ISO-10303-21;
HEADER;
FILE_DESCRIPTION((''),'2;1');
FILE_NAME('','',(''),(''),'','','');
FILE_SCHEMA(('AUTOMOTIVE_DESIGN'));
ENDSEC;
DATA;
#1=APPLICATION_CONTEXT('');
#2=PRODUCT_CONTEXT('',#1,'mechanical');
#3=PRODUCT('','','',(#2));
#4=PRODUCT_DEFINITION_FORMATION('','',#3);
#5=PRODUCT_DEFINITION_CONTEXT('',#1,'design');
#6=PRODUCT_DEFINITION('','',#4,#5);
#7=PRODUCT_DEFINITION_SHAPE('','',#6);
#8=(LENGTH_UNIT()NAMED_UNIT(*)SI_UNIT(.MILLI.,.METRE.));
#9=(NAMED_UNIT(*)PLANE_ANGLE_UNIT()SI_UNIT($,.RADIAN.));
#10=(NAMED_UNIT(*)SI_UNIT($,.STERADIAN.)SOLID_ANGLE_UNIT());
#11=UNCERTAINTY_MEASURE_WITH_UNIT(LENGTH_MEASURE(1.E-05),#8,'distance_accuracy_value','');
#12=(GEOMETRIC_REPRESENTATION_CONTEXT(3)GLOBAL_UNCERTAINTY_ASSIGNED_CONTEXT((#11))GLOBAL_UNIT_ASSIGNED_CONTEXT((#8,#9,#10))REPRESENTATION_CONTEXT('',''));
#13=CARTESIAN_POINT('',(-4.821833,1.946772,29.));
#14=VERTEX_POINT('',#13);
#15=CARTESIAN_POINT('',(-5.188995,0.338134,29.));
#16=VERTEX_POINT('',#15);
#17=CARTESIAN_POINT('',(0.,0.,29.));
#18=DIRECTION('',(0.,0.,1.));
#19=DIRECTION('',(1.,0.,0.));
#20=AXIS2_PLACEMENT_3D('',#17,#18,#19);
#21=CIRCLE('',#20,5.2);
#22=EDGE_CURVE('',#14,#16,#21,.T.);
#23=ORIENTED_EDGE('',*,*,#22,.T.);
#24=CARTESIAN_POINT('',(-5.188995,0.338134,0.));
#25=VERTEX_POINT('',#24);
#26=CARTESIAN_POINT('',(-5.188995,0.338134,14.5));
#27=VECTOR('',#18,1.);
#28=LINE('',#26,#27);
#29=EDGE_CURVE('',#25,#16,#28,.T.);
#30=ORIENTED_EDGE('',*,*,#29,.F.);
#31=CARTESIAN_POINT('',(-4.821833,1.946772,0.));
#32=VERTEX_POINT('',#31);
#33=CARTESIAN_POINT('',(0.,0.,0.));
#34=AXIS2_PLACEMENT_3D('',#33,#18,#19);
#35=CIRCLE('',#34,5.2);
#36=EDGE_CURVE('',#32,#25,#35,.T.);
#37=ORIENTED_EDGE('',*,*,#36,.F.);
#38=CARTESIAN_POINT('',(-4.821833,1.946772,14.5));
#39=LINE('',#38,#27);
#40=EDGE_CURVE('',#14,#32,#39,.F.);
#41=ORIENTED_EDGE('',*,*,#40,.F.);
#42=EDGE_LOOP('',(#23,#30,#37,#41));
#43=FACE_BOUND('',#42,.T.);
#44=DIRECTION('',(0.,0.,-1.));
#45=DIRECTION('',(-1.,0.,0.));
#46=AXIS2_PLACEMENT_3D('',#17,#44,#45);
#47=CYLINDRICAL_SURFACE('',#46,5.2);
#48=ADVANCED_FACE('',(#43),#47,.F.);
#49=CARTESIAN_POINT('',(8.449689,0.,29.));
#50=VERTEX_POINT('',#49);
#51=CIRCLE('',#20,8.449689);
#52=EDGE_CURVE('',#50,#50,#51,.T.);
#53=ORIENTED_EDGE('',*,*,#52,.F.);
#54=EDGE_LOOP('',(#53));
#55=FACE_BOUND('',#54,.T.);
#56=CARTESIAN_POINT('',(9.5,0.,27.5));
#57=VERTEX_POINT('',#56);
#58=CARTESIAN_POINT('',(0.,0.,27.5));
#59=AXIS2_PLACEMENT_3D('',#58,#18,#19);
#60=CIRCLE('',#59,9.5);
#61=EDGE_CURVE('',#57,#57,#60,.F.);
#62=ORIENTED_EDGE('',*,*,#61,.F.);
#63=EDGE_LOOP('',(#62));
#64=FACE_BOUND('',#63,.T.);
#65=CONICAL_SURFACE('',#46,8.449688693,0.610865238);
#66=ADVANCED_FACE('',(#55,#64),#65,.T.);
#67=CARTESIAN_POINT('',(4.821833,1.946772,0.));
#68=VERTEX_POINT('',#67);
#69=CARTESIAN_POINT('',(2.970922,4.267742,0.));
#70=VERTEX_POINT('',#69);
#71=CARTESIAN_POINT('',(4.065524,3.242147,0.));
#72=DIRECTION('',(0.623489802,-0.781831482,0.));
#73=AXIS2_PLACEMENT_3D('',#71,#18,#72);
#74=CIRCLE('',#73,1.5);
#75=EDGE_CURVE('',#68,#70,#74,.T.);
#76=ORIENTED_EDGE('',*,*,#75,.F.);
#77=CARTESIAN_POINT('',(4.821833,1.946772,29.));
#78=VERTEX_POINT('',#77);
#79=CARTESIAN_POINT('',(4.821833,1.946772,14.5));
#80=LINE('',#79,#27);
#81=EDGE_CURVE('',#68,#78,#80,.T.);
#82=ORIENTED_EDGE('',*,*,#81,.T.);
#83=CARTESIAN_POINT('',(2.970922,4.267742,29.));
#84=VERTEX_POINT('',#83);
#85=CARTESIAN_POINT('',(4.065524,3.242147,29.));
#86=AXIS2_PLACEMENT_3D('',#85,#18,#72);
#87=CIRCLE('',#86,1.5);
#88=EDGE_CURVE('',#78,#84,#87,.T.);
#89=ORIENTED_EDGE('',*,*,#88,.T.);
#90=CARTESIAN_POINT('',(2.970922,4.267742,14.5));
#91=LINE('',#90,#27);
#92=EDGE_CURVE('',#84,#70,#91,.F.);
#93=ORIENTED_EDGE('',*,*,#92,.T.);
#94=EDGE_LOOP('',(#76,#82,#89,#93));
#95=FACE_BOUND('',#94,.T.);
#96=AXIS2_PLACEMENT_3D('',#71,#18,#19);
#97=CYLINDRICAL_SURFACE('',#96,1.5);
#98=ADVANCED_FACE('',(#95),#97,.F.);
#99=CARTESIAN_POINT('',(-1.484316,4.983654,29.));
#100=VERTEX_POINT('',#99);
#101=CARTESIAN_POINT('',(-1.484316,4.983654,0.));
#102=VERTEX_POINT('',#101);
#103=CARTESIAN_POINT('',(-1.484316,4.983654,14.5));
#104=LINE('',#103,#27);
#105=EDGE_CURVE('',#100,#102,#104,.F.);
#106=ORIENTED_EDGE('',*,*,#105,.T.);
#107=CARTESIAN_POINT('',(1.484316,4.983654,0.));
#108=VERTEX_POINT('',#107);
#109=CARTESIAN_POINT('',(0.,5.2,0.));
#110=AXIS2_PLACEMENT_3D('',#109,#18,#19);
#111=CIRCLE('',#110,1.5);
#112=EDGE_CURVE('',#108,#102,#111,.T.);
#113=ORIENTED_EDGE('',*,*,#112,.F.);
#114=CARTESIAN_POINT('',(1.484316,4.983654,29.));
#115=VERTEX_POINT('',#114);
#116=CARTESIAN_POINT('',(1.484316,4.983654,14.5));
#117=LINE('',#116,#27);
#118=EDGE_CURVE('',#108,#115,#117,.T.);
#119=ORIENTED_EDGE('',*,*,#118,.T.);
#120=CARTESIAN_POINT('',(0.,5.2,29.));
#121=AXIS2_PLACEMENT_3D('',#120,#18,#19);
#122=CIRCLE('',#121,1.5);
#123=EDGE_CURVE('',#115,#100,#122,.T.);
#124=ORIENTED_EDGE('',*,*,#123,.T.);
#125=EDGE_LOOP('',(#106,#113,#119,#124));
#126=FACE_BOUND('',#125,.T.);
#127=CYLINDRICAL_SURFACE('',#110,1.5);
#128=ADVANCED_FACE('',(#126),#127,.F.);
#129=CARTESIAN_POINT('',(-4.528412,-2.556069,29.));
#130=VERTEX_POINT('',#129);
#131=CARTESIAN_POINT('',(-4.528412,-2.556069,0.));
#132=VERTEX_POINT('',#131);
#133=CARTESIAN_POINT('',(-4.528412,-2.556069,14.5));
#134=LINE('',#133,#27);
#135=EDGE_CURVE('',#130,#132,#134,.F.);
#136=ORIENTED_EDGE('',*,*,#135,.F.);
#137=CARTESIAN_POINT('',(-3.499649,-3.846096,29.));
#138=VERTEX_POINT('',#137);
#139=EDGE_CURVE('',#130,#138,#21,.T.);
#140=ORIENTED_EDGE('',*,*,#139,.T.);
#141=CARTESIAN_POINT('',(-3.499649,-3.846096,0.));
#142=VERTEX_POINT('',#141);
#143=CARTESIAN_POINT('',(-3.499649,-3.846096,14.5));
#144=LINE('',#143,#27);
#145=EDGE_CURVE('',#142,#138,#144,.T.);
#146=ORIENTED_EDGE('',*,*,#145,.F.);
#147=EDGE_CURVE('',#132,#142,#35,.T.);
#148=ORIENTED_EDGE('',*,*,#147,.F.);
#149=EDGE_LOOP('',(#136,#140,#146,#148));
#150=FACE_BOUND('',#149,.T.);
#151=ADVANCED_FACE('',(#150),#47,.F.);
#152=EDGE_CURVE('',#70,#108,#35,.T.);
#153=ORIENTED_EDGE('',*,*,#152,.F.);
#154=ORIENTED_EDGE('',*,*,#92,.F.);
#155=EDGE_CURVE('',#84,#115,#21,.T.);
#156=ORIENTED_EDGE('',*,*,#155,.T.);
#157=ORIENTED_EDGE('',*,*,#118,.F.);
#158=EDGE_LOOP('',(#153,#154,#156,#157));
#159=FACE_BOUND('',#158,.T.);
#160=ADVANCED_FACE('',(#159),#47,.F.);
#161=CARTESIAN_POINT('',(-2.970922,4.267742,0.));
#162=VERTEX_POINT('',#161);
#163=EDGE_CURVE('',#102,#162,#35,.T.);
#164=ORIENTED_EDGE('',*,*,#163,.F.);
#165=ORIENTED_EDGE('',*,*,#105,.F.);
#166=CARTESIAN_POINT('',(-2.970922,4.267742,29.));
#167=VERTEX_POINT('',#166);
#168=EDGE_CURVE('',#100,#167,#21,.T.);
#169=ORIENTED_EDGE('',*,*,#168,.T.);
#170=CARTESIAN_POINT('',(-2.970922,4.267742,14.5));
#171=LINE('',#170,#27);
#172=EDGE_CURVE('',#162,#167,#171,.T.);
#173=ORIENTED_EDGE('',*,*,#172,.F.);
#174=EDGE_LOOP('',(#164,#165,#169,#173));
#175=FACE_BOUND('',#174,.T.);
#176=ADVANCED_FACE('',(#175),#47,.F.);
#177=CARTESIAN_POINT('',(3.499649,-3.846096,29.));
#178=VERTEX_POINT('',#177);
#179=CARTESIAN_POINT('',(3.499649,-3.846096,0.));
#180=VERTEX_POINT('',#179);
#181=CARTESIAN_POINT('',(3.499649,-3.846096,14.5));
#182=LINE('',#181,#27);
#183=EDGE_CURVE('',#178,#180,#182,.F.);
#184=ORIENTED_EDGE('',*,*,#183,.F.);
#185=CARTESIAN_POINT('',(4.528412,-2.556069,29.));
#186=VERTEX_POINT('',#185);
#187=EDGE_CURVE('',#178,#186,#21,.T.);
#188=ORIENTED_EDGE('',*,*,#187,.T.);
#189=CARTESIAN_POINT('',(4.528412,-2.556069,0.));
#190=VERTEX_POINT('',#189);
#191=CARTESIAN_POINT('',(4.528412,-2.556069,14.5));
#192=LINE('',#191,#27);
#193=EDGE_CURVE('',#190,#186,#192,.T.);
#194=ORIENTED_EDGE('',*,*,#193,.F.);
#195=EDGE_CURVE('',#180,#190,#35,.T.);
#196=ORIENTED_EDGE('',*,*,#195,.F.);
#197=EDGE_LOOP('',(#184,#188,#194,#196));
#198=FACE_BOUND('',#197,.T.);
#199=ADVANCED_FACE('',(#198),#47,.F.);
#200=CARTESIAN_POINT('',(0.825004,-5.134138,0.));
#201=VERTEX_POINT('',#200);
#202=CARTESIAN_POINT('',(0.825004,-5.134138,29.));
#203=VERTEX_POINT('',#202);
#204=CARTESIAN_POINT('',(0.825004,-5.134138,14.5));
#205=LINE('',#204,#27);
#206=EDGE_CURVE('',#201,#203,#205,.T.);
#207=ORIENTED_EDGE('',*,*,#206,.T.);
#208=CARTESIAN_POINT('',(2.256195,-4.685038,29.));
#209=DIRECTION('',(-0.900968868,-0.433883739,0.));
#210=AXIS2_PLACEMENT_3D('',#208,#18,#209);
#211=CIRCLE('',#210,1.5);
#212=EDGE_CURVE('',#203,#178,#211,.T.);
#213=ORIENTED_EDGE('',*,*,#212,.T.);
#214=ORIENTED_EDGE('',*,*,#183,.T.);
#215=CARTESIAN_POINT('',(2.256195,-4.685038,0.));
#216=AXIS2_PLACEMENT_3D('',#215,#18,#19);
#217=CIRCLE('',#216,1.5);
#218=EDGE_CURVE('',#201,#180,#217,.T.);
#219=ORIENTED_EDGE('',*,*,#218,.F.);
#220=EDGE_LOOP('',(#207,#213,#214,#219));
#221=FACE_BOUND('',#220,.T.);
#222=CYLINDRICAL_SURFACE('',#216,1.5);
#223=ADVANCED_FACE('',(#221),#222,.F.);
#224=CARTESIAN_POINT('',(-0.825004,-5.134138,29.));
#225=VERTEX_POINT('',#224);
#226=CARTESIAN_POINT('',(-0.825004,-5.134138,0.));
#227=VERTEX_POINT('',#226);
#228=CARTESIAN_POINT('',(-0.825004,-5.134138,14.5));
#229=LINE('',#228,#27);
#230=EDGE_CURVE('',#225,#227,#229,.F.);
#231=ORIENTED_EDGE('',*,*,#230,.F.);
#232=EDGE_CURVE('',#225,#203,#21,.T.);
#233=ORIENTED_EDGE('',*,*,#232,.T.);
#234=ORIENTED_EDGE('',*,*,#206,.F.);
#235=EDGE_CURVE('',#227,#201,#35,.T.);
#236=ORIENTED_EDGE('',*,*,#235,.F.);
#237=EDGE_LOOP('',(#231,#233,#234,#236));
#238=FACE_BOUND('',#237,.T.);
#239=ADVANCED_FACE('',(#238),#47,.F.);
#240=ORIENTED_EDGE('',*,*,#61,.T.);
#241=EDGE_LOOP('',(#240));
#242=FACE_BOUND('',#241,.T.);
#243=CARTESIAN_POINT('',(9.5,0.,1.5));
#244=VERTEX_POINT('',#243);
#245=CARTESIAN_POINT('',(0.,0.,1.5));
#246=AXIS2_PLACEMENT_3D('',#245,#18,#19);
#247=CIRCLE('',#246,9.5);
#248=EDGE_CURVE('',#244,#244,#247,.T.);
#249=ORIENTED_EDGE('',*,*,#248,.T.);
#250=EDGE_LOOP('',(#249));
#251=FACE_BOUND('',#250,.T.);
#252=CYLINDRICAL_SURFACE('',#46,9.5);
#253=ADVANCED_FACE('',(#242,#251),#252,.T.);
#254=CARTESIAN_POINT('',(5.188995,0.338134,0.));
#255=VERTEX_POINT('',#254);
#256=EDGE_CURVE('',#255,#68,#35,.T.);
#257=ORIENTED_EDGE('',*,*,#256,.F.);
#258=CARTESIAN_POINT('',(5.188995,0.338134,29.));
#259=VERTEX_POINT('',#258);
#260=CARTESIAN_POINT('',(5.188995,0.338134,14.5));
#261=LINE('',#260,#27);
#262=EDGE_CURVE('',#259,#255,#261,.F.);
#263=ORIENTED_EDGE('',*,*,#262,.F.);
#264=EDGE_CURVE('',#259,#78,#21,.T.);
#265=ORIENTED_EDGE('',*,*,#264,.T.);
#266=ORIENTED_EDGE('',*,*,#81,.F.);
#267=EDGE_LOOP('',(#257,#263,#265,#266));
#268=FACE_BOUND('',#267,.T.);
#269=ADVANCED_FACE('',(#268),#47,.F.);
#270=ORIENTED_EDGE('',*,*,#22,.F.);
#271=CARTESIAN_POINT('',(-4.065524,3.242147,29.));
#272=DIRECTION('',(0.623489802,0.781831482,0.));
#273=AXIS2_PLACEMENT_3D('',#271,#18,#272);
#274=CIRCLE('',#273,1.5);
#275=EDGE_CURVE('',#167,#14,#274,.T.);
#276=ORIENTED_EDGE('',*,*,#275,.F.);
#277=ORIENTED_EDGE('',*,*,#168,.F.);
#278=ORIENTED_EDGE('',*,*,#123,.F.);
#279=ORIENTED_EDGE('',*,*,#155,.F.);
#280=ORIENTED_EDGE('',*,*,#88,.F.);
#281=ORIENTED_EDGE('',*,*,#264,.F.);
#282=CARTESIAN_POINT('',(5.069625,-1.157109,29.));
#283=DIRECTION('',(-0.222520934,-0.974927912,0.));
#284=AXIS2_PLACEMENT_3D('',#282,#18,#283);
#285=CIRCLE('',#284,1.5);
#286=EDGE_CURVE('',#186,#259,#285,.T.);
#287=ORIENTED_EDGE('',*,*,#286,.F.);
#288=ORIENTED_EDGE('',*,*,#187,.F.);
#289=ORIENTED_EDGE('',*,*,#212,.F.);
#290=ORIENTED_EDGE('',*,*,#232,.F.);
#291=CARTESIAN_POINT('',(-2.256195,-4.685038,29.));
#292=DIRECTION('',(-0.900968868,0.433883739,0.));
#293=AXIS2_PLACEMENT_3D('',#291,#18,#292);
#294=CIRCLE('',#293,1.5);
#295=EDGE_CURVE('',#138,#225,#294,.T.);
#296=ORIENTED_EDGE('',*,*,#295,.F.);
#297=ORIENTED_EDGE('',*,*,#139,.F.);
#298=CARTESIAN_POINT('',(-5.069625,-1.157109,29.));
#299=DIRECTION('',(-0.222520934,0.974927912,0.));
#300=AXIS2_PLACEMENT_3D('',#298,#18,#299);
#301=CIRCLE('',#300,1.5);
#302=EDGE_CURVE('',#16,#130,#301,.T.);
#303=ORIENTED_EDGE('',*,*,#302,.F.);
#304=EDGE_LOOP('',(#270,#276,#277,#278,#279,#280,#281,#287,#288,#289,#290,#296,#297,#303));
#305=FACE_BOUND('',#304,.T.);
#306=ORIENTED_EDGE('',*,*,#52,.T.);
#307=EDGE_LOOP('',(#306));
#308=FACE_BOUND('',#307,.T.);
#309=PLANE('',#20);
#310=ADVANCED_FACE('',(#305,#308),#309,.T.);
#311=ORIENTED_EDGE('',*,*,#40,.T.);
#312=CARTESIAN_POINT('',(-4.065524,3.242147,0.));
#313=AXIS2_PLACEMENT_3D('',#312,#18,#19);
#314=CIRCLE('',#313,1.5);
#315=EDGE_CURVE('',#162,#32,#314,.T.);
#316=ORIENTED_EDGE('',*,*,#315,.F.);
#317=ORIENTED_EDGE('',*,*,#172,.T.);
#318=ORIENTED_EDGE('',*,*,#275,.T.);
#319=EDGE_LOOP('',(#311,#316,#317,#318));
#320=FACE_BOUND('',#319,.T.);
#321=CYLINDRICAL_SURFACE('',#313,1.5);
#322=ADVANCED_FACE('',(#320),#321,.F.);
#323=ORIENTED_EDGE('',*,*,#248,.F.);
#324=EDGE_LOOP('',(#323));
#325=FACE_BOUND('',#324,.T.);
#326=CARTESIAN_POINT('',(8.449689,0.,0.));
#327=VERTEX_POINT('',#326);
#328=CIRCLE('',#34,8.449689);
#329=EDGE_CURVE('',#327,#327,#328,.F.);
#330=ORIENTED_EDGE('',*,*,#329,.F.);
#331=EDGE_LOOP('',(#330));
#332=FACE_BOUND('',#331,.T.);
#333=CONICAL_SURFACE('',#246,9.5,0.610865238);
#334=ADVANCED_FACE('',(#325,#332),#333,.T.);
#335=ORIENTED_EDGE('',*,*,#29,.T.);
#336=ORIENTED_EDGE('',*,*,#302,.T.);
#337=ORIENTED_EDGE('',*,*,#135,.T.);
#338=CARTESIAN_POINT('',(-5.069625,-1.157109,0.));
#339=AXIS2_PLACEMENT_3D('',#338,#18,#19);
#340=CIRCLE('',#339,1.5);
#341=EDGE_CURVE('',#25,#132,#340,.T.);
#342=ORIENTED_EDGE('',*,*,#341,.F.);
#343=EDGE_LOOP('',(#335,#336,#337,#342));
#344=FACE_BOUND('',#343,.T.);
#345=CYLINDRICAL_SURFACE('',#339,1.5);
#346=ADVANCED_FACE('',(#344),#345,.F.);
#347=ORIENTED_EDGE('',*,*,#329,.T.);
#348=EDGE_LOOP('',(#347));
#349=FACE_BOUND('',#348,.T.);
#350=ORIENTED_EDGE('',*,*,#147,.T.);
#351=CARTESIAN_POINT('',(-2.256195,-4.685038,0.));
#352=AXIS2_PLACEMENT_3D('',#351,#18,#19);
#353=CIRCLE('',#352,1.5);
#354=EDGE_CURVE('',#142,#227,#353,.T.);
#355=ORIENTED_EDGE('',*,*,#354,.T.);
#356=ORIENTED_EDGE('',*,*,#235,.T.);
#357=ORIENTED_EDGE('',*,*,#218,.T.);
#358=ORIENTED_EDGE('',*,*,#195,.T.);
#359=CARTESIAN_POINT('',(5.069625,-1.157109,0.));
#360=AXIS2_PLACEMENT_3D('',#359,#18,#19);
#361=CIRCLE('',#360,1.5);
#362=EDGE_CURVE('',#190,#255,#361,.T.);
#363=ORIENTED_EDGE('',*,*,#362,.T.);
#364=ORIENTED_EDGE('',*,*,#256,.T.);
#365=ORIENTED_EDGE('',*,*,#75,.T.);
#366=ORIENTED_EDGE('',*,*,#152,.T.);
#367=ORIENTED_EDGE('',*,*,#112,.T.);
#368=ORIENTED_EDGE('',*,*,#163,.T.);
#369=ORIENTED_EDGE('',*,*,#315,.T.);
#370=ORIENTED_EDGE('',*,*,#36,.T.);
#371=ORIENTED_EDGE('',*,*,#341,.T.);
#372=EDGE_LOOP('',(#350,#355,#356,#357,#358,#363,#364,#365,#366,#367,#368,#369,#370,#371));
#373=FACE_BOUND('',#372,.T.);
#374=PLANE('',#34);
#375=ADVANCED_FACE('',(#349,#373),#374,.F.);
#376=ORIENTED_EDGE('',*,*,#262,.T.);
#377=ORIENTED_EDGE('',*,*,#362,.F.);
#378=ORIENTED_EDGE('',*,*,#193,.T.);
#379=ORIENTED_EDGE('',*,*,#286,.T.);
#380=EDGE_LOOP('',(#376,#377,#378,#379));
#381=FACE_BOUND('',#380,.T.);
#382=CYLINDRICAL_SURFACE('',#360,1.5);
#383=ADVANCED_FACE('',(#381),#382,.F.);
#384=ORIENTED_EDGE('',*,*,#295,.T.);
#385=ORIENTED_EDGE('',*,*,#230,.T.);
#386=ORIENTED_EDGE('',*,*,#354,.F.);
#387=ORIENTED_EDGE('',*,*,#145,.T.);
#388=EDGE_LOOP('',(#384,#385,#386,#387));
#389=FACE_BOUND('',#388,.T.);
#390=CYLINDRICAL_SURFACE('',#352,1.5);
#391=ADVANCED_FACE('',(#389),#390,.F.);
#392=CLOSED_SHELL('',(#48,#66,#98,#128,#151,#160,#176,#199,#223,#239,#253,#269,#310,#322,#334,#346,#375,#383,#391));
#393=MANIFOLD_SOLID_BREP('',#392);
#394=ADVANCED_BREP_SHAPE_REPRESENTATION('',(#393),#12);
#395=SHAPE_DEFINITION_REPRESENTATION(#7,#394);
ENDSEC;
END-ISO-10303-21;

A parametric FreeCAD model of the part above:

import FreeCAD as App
import Part
import Sketcher


def edges_at(feature, points):
    """Names of the edges that pass closest to the given points."""
    edges = feature.Shape.Edges
    near = lambda p: min(range(len(edges)), key=lambda i: edges[i].distToShape(Part.Vertex(*p))[0])
    return sorted({f"Edge{near(p) + 1}" for p in points})

doc = App.newDocument("Part")
body = doc.addObject("PartDesign::Body", "Body")

sketch1 = body.newObject("Sketcher::SketchObject", "Sketch")
sketch1.AttachmentSupport = (doc.getObject("XY_Plane"), [""])
sketch1.MapMode = "FlatFace"
sketch1.addGeometry(Part.Circle(App.Vector(0, 0, 0), App.Vector(0, 0, 1), 10), False)
sketch1.addGeometry(Part.Circle(App.Vector(0, 0, 0), App.Vector(0, 0, 1), 5), False)
sketch1.addConstraint(Sketcher.Constraint("Coincident", 0, 3, -1, 1))
sketch1.addConstraint(Sketcher.Constraint("Coincident", 1, 3, -1, 1))
sketch1.addConstraint(Sketcher.Constraint("Diameter", 0, 19.0))
sketch1.addConstraint(Sketcher.Constraint("Diameter", 1, 10.4))
pad1 = body.newObject("PartDesign::Pad", "Pad")
pad1.Profile = sketch1
pad1.Length = 29

sketch2 = body.newObject("Sketcher::SketchObject", "Sketch001")
sketch2.AttachmentSupport = (doc.getObject("XY_Plane"), [""])
sketch2.MapMode = "FlatFace"
sketch2.AttachmentOffset = App.Placement(App.Vector(0, 0, 29), App.Rotation())
sketch2.addGeometry(Part.Circle(App.Vector(0, 5.2, 0), App.Vector(0, 0, 1), 1.5), False)
sketch2.addConstraint(Sketcher.Constraint("PointOnObject", 0, 3, -2))
sketch2.addConstraint(Sketcher.Constraint("Diameter", 0, 3.0))
sketch2.addConstraint(Sketcher.Constraint("DistanceY", -1, 1, 0, 3, 5.2))
pocket1 = body.newObject("PartDesign::Pocket", "Pocket")
pocket1.Profile = sketch2
pocket1.Type = "ThroughAll"
doc.recompute()

polarpattern = body.newObject("PartDesign::PolarPattern", "PolarPattern")
polarpattern.Originals = [pocket1]
polarpattern.Axis = (doc.getObject("Z_Axis"), [""])
polarpattern.Angle = 360
polarpattern.Occurrences = 7
body.Tip = polarpattern
doc.recompute()

chamfer = body.newObject("PartDesign::Chamfer", "Chamfer")
chamfer.Base = (polarpattern, edges_at(polarpattern, [(-9.5, 0, 0), (-9.5, 0, 29)]))
chamfer.ChamferType = "Two distances"
chamfer.Size = 1.5
chamfer.Size2 = 1.050311

doc.recompute()
